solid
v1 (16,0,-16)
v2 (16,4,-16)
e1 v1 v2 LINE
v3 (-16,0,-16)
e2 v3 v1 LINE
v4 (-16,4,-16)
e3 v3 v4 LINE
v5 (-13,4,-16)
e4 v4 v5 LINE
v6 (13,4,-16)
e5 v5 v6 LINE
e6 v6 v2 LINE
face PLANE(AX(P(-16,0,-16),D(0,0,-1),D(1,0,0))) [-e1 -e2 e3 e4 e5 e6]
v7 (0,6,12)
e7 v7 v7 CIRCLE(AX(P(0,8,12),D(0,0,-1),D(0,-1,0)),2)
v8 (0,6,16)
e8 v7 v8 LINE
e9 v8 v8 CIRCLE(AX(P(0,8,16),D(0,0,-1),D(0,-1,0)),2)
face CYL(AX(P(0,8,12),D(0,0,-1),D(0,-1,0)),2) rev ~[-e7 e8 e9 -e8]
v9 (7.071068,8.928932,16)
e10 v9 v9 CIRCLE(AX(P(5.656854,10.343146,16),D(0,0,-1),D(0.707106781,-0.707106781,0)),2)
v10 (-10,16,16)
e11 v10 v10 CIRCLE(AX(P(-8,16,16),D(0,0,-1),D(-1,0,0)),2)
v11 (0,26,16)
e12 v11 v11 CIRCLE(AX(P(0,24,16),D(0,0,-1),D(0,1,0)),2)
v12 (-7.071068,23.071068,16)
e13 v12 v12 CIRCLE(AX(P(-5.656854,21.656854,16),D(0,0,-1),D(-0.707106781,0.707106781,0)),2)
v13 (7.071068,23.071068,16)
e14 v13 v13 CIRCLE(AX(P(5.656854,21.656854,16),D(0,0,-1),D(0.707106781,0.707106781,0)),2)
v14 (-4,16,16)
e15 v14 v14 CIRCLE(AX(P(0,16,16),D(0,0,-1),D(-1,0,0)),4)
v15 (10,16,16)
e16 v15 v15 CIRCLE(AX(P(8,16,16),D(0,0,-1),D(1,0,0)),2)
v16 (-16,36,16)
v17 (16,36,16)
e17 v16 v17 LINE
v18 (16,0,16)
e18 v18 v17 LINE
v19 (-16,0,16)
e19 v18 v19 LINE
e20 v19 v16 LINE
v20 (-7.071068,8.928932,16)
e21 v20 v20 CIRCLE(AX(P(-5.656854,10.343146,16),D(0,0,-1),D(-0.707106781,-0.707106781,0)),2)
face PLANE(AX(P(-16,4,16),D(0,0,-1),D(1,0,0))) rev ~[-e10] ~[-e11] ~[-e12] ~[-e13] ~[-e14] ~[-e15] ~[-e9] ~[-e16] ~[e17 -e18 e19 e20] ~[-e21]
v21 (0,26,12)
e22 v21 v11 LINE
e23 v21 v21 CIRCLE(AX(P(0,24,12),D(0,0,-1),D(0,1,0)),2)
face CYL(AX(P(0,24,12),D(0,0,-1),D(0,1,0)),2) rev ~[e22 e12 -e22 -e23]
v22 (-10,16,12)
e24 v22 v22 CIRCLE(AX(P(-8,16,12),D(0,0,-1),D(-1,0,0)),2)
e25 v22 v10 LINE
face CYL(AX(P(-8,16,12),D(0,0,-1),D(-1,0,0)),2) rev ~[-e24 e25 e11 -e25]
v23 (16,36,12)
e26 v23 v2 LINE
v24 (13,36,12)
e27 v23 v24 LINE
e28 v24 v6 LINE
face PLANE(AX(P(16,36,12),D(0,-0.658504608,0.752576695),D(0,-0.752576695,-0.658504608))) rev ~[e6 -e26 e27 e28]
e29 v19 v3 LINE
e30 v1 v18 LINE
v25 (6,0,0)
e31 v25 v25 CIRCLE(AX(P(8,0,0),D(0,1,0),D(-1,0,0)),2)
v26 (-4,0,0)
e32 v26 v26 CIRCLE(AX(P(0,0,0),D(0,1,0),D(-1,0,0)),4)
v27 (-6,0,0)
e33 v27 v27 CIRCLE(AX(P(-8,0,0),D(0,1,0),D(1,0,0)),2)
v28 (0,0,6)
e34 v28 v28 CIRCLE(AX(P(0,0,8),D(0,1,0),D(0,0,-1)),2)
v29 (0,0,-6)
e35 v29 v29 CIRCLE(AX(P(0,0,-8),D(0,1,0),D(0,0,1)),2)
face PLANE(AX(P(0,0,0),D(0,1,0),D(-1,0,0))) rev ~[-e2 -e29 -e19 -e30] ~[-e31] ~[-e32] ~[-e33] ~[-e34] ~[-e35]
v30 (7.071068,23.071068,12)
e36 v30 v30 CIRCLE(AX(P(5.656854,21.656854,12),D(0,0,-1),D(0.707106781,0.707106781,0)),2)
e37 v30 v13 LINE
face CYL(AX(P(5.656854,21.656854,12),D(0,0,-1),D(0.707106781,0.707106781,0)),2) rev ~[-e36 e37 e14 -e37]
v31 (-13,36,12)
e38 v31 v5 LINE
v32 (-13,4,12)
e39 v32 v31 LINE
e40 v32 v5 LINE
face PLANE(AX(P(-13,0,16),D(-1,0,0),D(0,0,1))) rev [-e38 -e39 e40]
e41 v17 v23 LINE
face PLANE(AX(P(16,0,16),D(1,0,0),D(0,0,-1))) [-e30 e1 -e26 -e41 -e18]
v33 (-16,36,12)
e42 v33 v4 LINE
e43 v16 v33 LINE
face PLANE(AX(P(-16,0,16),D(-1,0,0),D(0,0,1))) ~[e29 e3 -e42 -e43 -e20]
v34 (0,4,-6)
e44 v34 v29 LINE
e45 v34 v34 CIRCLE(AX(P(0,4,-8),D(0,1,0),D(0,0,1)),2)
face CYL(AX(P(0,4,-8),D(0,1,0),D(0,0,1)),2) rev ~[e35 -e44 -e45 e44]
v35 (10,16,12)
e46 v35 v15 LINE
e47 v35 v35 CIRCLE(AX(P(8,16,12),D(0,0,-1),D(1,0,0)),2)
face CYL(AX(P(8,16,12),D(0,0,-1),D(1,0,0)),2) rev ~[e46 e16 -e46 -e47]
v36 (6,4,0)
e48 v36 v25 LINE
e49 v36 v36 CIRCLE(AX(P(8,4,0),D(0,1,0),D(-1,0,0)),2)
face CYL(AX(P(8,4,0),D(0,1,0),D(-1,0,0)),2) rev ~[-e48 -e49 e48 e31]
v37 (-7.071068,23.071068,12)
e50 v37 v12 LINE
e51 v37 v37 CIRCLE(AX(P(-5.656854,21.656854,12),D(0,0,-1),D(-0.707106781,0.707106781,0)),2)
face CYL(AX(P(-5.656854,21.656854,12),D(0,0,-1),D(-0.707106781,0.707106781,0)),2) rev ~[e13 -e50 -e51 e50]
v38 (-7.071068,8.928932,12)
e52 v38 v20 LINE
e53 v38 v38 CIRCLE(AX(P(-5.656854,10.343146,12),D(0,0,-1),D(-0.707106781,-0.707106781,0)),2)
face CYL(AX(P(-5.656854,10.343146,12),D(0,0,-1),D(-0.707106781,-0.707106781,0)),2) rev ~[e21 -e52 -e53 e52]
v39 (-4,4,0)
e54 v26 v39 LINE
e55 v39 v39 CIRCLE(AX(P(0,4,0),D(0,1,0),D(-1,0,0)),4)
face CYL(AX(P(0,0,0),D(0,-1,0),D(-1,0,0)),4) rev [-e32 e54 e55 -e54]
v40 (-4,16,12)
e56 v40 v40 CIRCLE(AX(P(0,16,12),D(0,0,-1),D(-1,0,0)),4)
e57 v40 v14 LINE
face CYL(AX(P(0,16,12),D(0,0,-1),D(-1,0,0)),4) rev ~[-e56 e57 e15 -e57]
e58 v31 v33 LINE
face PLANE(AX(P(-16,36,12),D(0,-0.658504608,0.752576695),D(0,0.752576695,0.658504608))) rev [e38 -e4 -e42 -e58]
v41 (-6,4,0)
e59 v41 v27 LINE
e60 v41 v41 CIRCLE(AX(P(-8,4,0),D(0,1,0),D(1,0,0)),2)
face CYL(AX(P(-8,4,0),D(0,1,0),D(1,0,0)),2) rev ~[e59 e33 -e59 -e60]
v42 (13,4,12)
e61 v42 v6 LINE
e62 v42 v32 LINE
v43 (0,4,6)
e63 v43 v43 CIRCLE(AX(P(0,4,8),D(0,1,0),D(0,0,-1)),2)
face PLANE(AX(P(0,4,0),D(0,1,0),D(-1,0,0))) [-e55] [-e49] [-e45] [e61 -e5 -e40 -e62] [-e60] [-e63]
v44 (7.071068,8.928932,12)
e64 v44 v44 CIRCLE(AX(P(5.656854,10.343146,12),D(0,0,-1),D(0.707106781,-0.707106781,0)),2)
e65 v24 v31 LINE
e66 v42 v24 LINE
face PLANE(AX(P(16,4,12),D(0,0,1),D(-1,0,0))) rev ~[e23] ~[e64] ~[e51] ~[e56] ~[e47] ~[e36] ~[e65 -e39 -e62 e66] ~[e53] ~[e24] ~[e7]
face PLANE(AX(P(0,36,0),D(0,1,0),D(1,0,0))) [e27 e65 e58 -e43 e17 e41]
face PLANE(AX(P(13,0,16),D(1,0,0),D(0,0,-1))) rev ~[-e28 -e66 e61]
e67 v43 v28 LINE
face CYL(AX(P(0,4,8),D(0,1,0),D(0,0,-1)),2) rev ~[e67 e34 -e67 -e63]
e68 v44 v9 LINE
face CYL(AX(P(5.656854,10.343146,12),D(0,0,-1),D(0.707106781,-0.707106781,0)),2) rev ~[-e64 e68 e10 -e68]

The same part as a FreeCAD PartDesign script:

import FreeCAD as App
import Part
import Sketcher

doc = App.newDocument("Part")
params = doc.addObject("Spreadsheet::Sheet", "Params")
for row, (alias, value) in enumerate([
    ("sketch1_diameter", "8 mm"),
    ("sketch1_width", "32 mm"),
    ("pad1_length", "4 mm"),
    ("sketch2_diameter", "4 mm"),
    ("pocket1_length", "4 mm"),
    ("sketch3_width", "32 mm"),
    ("sketch3_height", "4 mm"),
    ("pad2_length", "32 mm"),
    ("sketch4_diameter", "8 mm"),
    ("pocket2_length", "28 mm"),
    ("sketch5_diameter", "4 mm"),
    ("pocket3_length", "28 mm"),
    ("sketch6_width", "32 mm"),
    ("sketch6_height", "28 mm"),
    ("pad3_length", "3 mm"),
], start=1):
    params.set(f"A{row}", alias)
    params.set(f"B{row}", "=" + value)
    params.setAlias(f"B{row}", alias)

body = doc.addObject("PartDesign::Body", "Body")

sketch1 = doc.addObject("Sketcher::SketchObject", "Sketch")
body.addObject(sketch1)
sketch1.AttachmentSupport = (doc.XZ_Plane, [""])
sketch1.MapMode = "FlatFace"
sketch1.addGeometry(Part.LineSegment(App.Vector(-16, 16, 0), App.Vector(16, 16, 0)), False)
sketch1.addGeometry(Part.LineSegment(App.Vector(16, 16, 0), App.Vector(16, -16, 0)), False)
sketch1.addGeometry(Part.LineSegment(App.Vector(16, -16, 0), App.Vector(-16, -16, 0)), False)
sketch1.addGeometry(Part.LineSegment(App.Vector(-16, -16, 0), App.Vector(-16, 16, 0)), False)
sketch1.addGeometry(Part.Circle(App.Vector(0, 0, 0), App.Vector(0, 0, 1), 4), False)
sketch1.addConstraint(Sketcher.Constraint("Coincident", 0, 2, 1, 1))
sketch1.addConstraint(Sketcher.Constraint("Coincident", 1, 2, 2, 1))
sketch1.addConstraint(Sketcher.Constraint("Coincident", 2, 2, 3, 1))
sketch1.addConstraint(Sketcher.Constraint("Coincident", 3, 2, 0, 1))
sketch1.addConstraint(Sketcher.Constraint("Horizontal", 0))
sketch1.addConstraint(Sketcher.Constraint("Vertical", 1))
sketch1.addConstraint(Sketcher.Constraint("Horizontal", 2))
sketch1.addConstraint(Sketcher.Constraint("Vertical", 3))
sketch1.addConstraint(Sketcher.Constraint("Coincident", 4, 3, -1, 1))
sketch1.addConstraint(Sketcher.Constraint("Symmetric", 0, 2, 2, 2, -1, 1))
sketch1.addConstraint(Sketcher.Constraint("Equal", 2, 1))
sketch1.addConstraint(Sketcher.Constraint("Diameter", 4, 8.0))
sketch1.addConstraint(Sketcher.Constraint("DistanceX", 0, 1, 0, 2, 32.0))
sketch1.setExpression("Constraints[11]", "Params.sketch1_diameter")
sketch1.setExpression("Constraints[12]", "Params.sketch1_width")
pad1 = doc.addObject("PartDesign::Pad", "Pad")
body.addObject(pad1)
pad1.Profile = sketch1
pad1.setExpression("Length", "Params.pad1_length")
pad1.Reversed = True

sketch2 = doc.addObject("Sketcher::SketchObject", "Sketch001")
body.addObject(sketch2)
sketch2.AttachmentSupport = (doc.XZ_Plane, [""])
sketch2.MapMode = "FlatFace"
sketch2.AttachmentOffset = App.Placement(App.Vector(0, 0, -4), App.Rotation())
sketch2.addGeometry(Part.Circle(App.Vector(-8, 0, 0), App.Vector(0, 0, 1), 2), False)
sketch2.addConstraint(Sketcher.Constraint("PointOnObject", 0, 3, -1))
sketch2.addConstraint(Sketcher.Constraint("Diameter", 0, 4.0))
sketch2.addConstraint(Sketcher.Constraint("DistanceX", 0, 3, -1, 1, 8.0))
sketch2.setExpression("Constraints[1]", "Params.sketch2_diameter")
pocket1 = doc.addObject("PartDesign::Pocket", "Pocket")
body.addObject(pocket1)
pocket1.Profile = sketch2
pocket1.setExpression("Length", "Params.pocket1_length")
pocket1.Reversed = True
doc.recompute()

polarpattern = doc.addObject("PartDesign::PolarPattern", "PolarPattern")
body.addObject(polarpattern)
polarpattern.Originals = [pocket1]
polarpattern.Axis = (doc.Y_Axis, [""])
polarpattern.Angle = 360
polarpattern.Occurrences = 4
body.Tip = polarpattern

sketch3 = doc.addObject("Sketcher::SketchObject", "Sketch002")
body.addObject(sketch3)
sketch3.AttachmentSupport = (doc.XZ_Plane, [""])
sketch3.MapMode = "FlatFace"
sketch3.AttachmentOffset = App.Placement(App.Vector(0, 0, -4), App.Rotation())
sketch3.addGeometry(Part.LineSegment(App.Vector(-16, 12, 0), App.Vector(-16, 16, 0)), False)
sketch3.addGeometry(Part.LineSegment(App.Vector(-16, 16, 0), App.Vector(16, 16, 0)), False)
sketch3.addGeometry(Part.LineSegment(App.Vector(16, 16, 0), App.Vector(16, 12, 0)), False)
sketch3.addGeometry(Part.LineSegment(App.Vector(16, 12, 0), App.Vector(-16, 12, 0)), False)
sketch3.addConstraint(Sketcher.Constraint("Coincident", 0, 2, 1, 1))
sketch3.addConstraint(Sketcher.Constraint("Coincident", 1, 2, 2, 1))
sketch3.addConstraint(Sketcher.Constraint("Coincident", 2, 2, 3, 1))
sketch3.addConstraint(Sketcher.Constraint("Coincident", 3, 2, 0, 1))
sketch3.addConstraint(Sketcher.Constraint("Vertical", 0))
sketch3.addConstraint(Sketcher.Constraint("Horizontal", 1))
sketch3.addConstraint(Sketcher.Constraint("Vertical", 2))
sketch3.addConstraint(Sketcher.Constraint("Horizontal", 3))
sketch3.addConstraint(Sketcher.Constraint("DistanceX", 1, 1, 1, 2, 32.0))
sketch3.addConstraint(Sketcher.Constraint("DistanceY", 0, 1, 0, 2, 4.0))
sketch3.addConstraint(Sketcher.Constraint("DistanceX", 0, 2, -1, 1, 16.0))
sketch3.addConstraint(Sketcher.Constraint("DistanceY", -1, 1, 0, 2, 16.0))
sketch3.setExpression("Constraints[8]", "Params.sketch3_width")
sketch3.setExpression("Constraints[9]", "Params.sketch3_height")
pad2 = doc.addObject("PartDesign::Pad", "Pad001")
body.addObject(pad2)
pad2.Profile = sketch3
pad2.setExpression("Length", "Params.pad2_length")
pad2.Reversed = True

sketch4 = doc.addObject("Sketcher::SketchObject", "Sketch003")
body.addObject(sketch4)
sketch4.AttachmentSupport = (doc.XY_Plane, [""])
sketch4.MapMode = "FlatFace"
sketch4.AttachmentOffset = App.Placement(App.Vector(0, 0, 12), App.Rotation())
sketch4.addGeometry(Part.Circle(App.Vector(0, 16, 0), App.Vector(0, 0, 1), 4), False)
sketch4.addConstraint(Sketcher.Constraint("PointOnObject", 0, 3, -2))
sketch4.addConstraint(Sketcher.Constraint("Diameter", 0, 8.0))
sketch4.addConstraint(Sketcher.Constraint("DistanceY", -1, 1, 0, 3, 16.0))
sketch4.setExpression("Constraints[1]", "Params.sketch4_diameter")
pocket2 = doc.addObject("PartDesign::Pocket", "Pocket001")
body.addObject(pocket2)
pocket2.Profile = sketch4
pocket2.setExpression("Length", "Params.pocket2_length")
pocket2.Reversed = True

sketch5 = doc.addObject("Sketcher::SketchObject", "Sketch004")
body.addObject(sketch5)
sketch5.AttachmentSupport = (doc.XY_Plane, [""])
sketch5.MapMode = "FlatFace"
sketch5.AttachmentOffset = App.Placement(App.Vector(0, 0, 12), App.Rotation())
sketch5.addGeometry(Part.Circle(App.Vector(-8, 16, 0), App.Vector(0, 0, 1), 2), False)
sketch5.addConstraint(Sketcher.Constraint("Diameter", 0, 4.0))
sketch5.addConstraint(Sketcher.Constraint("DistanceX", 0, 3, -1, 1, 8.0))
sketch5.addConstraint(Sketcher.Constraint("DistanceY", -1, 1, 0, 3, 16.0))
sketch5.setExpression("Constraints[0]", "Params.sketch5_diameter")
pocket3 = doc.addObject("PartDesign::Pocket", "Pocket002")
body.addObject(pocket3)
pocket3.Profile = sketch5
pocket3.setExpression("Length", "Params.pocket3_length")
pocket3.Reversed = True
doc.recompute()

datumline = doc.addObject("PartDesign::Line", "DatumLine")
body.addObject(datumline)
datumline.Placement = App.Placement(App.Vector(0, 16, 0), App.Rotation(App.Vector(0, 0, 1), App.Vector(0, 0, 1)))
polarpattern2 = doc.addObject("PartDesign::PolarPattern", "PolarPattern001")
body.addObject(polarpattern2)
polarpattern2.Originals = [pocket3]
polarpattern2.Axis = (datumline, [""])
polarpattern2.Angle = 360
polarpattern2.Occurrences = 8
body.Tip = polarpattern2

sketch6 = doc.addObject("Sketcher::SketchObject", "Sketch005")
body.addObject(sketch6)
sketch6.AttachmentSupport = (doc.YZ_Plane, [""])
sketch6.MapMode = "FlatFace"
sketch6.AttachmentOffset = App.Placement(App.Vector(0, 0, 16), App.Rotation())
sketch6.addGeometry(Part.LineSegment(App.Vector(36, 12, 0), App.Vector(4, 12, 0)), False)
sketch6.addGeometry(Part.LineSegment(App.Vector(4, 12, 0), App.Vector(4, -16, 0)), False)
sketch6.addGeometry(Part.LineSegment(App.Vector(4, -16, 0), App.Vector(36, 12, 0)), False)
sketch6.addConstraint(Sketcher.Constraint("Coincident", 0, 2, 1, 1))
sketch6.addConstraint(Sketcher.Constraint("Coincident", 1, 2, 2, 1))
sketch6.addConstraint(Sketcher.Constraint("Coincident", 2, 2, 0, 1))
sketch6.addConstraint(Sketcher.Constraint("Horizontal", 0))
sketch6.addConstraint(Sketcher.Constraint("Vertical", 1))
sketch6.addConstraint(Sketcher.Constraint("DistanceX", 0, 2, 0, 1, 32.0))
sketch6.addConstraint(Sketcher.Constraint("DistanceY", 1, 2, 1, 1, 28.0))
sketch6.addConstraint(Sketcher.Constraint("DistanceX", -1, 1, 0, 2, 4.0))
sketch6.addConstraint(Sketcher.Constraint("DistanceY", -1, 1, 0, 2, 12.0))
sketch6.setExpression("Constraints[5]", "Params.sketch6_width")
sketch6.setExpression("Constraints[6]", "Params.sketch6_height")
pad3 = doc.addObject("PartDesign::Pad", "Pad002")
body.addObject(pad3)
pad3.Profile = sketch6
pad3.setExpression("Length", "Params.pad3_length")
pad3.Reversed = True
doc.recompute()

mirrored = doc.addObject("PartDesign::Mirrored", "Mirrored")
body.addObject(mirrored)
mirrored.Originals = [pad3]
mirrored.MirrorPlane = (doc.YZ_Plane, [""])
body.Tip = mirrored

doc.recompute()
